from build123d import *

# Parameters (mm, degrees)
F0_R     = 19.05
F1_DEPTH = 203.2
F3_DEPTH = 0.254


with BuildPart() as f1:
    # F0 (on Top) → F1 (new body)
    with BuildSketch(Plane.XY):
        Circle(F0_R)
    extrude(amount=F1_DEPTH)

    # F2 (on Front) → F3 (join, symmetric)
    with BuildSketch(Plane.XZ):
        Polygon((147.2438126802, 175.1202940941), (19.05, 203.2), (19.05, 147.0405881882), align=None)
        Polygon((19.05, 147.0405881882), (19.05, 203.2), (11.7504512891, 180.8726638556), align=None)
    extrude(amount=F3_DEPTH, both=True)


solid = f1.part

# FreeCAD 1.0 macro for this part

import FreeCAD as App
import Part
import Sketcher
from FreeCAD import Vector
Q = App.Units.Quantity

doc = App.newDocument("Part")
body = doc.addObject("PartDesign::Body", "Body")

# Sketch on XY plane
sketch1 = body.newObject("Sketcher::SketchObject", "Sketch")
sketch1.AttachmentSupport = (doc.getObject("XY_Plane"), [""])
sketch1.MapMode = "FlatFace"
sketch1.addGeometry(Part.Circle(Vector(0, 0, 0), Vector(0, 0, 1), 19), False)
sketch1.addConstraint([
    Sketcher.Constraint("Coincident", 0, 3, -1, 1),
    Sketcher.Constraint("Diameter", 0, Q("1.5 in")),
])
pad1 = body.newObject("PartDesign::Pad", "Pad")
pad1.Profile = sketch1
pad1.Length = Q("8 in")

# Sketch on XZ plane
sketch2 = body.newObject("Sketcher::SketchObject", "Sketch001")
sketch2.AttachmentSupport = (doc.getObject("XZ_Plane"), [""])
sketch2.MapMode = "FlatFace"
sketch2.addGeometry([
    Part.LineSegment(Vector(147, 175, 0), Vector(19, 203, 0)),
    Part.LineSegment(Vector(19, 203, 0), Vector(12, 181, 0)),
    Part.LineSegment(Vector(12, 181, 0), Vector(19, 147, 0)),
    Part.LineSegment(Vector(19, 147, 0), Vector(147, 175, 0)),
], False)
sketch2.addConstraint([
    Sketcher.Constraint("Coincident", 0, 2, 1, 1),
    Sketcher.Constraint("Coincident", 1, 2, 2, 1),
    Sketcher.Constraint("Coincident", 2, 2, 3, 1),
    Sketcher.Constraint("Coincident", 3, 2, 0, 1),
    Sketcher.Constraint("Vertical", 0, 2, 2, 2),
    Sketcher.Constraint("Equal", 0, 3),
    Sketcher.Constraint("DistanceY", -1, 1, 0, 2, Q("8 in")),
    Sketcher.Constraint("DistanceX", -1, 1, 0, 2, Q("0.75 in")),
    Sketcher.Constraint("Distance", 0, Q("131.233088 mm")),
    Sketcher.Constraint("DistanceX", -1, 1, 1, 2, Q("11.750451 mm")),
    Sketcher.Constraint("DistanceY", -1, 1, 2, 2, Q("147.040588 mm")),
    Sketcher.Constraint("DistanceY", 3, 2, 1, 2, Q("5.75237 mm")),
])
pad2 = body.newObject("PartDesign::Pad", "Pad001")
pad2.Profile = sketch2
pad2.Length = Q("0.02 in")
pad2.Midplane = True

doc.recompute()
